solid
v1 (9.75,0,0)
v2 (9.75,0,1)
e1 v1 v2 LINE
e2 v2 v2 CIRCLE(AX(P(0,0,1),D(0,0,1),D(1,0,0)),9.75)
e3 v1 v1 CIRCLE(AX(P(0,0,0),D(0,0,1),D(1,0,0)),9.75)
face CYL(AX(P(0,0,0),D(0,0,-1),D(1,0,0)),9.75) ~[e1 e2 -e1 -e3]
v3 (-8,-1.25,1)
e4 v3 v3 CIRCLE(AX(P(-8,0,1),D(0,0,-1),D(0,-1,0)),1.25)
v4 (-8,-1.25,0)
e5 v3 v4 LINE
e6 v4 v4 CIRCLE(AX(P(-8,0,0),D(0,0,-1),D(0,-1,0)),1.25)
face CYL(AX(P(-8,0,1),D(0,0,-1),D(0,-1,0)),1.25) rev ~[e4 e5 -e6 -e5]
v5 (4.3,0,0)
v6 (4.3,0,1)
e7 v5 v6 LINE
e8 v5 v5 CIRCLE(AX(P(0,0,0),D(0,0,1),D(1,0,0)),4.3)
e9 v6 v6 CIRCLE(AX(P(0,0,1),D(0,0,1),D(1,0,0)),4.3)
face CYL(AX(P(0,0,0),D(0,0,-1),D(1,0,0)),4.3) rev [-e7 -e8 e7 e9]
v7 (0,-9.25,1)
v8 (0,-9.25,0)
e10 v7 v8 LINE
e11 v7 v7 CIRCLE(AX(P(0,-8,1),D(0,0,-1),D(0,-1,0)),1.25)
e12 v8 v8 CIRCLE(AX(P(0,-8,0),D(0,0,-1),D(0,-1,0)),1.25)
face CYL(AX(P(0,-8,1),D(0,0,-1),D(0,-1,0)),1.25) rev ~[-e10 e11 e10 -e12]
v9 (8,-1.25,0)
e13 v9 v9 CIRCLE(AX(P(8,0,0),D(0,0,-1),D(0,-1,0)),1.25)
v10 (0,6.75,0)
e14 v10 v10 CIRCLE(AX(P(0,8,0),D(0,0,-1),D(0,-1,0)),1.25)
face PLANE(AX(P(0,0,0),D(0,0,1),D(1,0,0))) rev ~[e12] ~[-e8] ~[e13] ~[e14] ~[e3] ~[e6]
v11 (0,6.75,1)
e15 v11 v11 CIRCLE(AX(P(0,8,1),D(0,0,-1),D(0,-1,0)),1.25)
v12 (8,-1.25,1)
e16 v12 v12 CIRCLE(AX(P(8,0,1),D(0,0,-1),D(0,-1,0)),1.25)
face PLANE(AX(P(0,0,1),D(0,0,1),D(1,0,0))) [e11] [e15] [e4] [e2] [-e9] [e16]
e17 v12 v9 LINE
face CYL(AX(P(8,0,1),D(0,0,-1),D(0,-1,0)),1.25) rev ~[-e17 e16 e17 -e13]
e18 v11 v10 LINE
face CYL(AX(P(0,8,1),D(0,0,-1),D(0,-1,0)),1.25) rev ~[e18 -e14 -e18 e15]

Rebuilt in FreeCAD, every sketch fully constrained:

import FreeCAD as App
import Part
import Sketcher
Q = App.Units.Quantity

doc = App.newDocument("Part")
params = doc.addObject("Spreadsheet::Sheet", "Params")
for row, (alias, value) in enumerate([
    ("sketch1_diameter", "19.5 mm"),
    ("sketch1_diameter2", "8.6 mm"),
    ("pad1_length", "1 mm"),
    ("sketch2_diameter", "2.5 mm"),
    ("hole_diameter", "2.5 mm"),
], start=1):
    params.set(f"A{row}", alias)
    params.set(f"B{row}", "=" + value)
    params.setAlias(f"B{row}", alias)

body = doc.addObject("PartDesign::Body", "Body")

sketch1 = doc.addObject("Sketcher::SketchObject", "Sketch")
body.addObject(sketch1)
sketch1.AttachmentSupport = (doc.XY_Plane, [""])
sketch1.MapMode = "FlatFace"
sketch1.addGeometry(Part.Circle(App.Vector(0, 0, 0), App.Vector(0, 0, 1), 9.8), False)
sketch1.addGeometry(Part.Circle(App.Vector(0, 0, 0), App.Vector(0, 0, 1), 4.3), False)
sketch1.addConstraint(Sketcher.Constraint("Coincident", 0, 3, -1, 1))
sketch1.addConstraint(Sketcher.Constraint("Coincident", 1, 3, -1, 1))
sketch1.addConstraint(Sketcher.Constraint("Diameter", 0, Q("19.5 mm")))
sketch1.addConstraint(Sketcher.Constraint("Diameter", 1, Q("8.6 mm")))
sketch1.setExpression("Constraints[2]", "Params.sketch1_diameter")
sketch1.setExpression("Constraints[3]", "Params.sketch1_diameter2")
pad1 = doc.addObject("PartDesign::Pad", "Pad")
body.addObject(pad1)
pad1.Profile = sketch1
pad1.setExpression("Length", "Params.pad1_length")

sketch2 = doc.addObject("Sketcher::SketchObject", "Sketch001")
body.addObject(sketch2)
sketch2.AttachmentSupport = (doc.XY_Plane, [""])
sketch2.MapMode = "FlatFace"
sketch2.AttachmentOffset = App.Placement(App.Vector(0, 0, 1), App.Rotation())
sketch2.addGeometry(Part.Circle(App.Vector(0, 8, 0), App.Vector(0, 0, 1), 1.2), False)
sketch2.addGeometry(Part.Circle(App.Vector(-8, 0, 0), App.Vector(0, 0, 1), 1.2), False)
sketch2.addGeometry(Part.Circle(App.Vector(0, -8, 0), App.Vector(0, 0, 1), 1.2), False)
sketch2.addGeometry(Part.Circle(App.Vector(8, 0, 0), App.Vector(0, 0, 1), 1.2), False)
sketch2.addConstraint(Sketcher.Constraint("Equal", 0, 1))
sketch2.addConstraint(Sketcher.Constraint("Equal", 1, 2))
sketch2.addConstraint(Sketcher.Constraint("Equal", 2, 3))
sketch2.addConstraint(Sketcher.Constraint("Symmetric", 0, 3, 2, 3, -1, 1))
sketch2.addConstraint(Sketcher.Constraint("Symmetric", 1, 3, 3, 3, -1, 1))
sketch2.addConstraint(Sketcher.Constraint("PointOnObject", 0, 3, -2))
sketch2.addConstraint(Sketcher.Constraint("PointOnObject", 1, 3, -1))
sketch2.addConstraint(Sketcher.Constraint("Diameter", 0, Q("2.5 mm")))
sketch2.addConstraint(Sketcher.Constraint("DistanceY", -1, 1, 0, 3, Q("8 mm")))
sketch2.addConstraint(Sketcher.Constraint("DistanceX", 1, 3, -1, 1, Q("8 mm")))
sketch2.setExpression("Constraints[7]", "Params.sketch2_diameter")
doc.recompute()
hole = doc.addObject("PartDesign::Hole", "Hole")
body.addObject(hole)
hole.Profile = sketch2
hole.ThreadType = "None"
hole.setExpression("Diameter", "Params.hole_diameter")
hole.DepthType = "ThroughAll"

doc.recompute()
